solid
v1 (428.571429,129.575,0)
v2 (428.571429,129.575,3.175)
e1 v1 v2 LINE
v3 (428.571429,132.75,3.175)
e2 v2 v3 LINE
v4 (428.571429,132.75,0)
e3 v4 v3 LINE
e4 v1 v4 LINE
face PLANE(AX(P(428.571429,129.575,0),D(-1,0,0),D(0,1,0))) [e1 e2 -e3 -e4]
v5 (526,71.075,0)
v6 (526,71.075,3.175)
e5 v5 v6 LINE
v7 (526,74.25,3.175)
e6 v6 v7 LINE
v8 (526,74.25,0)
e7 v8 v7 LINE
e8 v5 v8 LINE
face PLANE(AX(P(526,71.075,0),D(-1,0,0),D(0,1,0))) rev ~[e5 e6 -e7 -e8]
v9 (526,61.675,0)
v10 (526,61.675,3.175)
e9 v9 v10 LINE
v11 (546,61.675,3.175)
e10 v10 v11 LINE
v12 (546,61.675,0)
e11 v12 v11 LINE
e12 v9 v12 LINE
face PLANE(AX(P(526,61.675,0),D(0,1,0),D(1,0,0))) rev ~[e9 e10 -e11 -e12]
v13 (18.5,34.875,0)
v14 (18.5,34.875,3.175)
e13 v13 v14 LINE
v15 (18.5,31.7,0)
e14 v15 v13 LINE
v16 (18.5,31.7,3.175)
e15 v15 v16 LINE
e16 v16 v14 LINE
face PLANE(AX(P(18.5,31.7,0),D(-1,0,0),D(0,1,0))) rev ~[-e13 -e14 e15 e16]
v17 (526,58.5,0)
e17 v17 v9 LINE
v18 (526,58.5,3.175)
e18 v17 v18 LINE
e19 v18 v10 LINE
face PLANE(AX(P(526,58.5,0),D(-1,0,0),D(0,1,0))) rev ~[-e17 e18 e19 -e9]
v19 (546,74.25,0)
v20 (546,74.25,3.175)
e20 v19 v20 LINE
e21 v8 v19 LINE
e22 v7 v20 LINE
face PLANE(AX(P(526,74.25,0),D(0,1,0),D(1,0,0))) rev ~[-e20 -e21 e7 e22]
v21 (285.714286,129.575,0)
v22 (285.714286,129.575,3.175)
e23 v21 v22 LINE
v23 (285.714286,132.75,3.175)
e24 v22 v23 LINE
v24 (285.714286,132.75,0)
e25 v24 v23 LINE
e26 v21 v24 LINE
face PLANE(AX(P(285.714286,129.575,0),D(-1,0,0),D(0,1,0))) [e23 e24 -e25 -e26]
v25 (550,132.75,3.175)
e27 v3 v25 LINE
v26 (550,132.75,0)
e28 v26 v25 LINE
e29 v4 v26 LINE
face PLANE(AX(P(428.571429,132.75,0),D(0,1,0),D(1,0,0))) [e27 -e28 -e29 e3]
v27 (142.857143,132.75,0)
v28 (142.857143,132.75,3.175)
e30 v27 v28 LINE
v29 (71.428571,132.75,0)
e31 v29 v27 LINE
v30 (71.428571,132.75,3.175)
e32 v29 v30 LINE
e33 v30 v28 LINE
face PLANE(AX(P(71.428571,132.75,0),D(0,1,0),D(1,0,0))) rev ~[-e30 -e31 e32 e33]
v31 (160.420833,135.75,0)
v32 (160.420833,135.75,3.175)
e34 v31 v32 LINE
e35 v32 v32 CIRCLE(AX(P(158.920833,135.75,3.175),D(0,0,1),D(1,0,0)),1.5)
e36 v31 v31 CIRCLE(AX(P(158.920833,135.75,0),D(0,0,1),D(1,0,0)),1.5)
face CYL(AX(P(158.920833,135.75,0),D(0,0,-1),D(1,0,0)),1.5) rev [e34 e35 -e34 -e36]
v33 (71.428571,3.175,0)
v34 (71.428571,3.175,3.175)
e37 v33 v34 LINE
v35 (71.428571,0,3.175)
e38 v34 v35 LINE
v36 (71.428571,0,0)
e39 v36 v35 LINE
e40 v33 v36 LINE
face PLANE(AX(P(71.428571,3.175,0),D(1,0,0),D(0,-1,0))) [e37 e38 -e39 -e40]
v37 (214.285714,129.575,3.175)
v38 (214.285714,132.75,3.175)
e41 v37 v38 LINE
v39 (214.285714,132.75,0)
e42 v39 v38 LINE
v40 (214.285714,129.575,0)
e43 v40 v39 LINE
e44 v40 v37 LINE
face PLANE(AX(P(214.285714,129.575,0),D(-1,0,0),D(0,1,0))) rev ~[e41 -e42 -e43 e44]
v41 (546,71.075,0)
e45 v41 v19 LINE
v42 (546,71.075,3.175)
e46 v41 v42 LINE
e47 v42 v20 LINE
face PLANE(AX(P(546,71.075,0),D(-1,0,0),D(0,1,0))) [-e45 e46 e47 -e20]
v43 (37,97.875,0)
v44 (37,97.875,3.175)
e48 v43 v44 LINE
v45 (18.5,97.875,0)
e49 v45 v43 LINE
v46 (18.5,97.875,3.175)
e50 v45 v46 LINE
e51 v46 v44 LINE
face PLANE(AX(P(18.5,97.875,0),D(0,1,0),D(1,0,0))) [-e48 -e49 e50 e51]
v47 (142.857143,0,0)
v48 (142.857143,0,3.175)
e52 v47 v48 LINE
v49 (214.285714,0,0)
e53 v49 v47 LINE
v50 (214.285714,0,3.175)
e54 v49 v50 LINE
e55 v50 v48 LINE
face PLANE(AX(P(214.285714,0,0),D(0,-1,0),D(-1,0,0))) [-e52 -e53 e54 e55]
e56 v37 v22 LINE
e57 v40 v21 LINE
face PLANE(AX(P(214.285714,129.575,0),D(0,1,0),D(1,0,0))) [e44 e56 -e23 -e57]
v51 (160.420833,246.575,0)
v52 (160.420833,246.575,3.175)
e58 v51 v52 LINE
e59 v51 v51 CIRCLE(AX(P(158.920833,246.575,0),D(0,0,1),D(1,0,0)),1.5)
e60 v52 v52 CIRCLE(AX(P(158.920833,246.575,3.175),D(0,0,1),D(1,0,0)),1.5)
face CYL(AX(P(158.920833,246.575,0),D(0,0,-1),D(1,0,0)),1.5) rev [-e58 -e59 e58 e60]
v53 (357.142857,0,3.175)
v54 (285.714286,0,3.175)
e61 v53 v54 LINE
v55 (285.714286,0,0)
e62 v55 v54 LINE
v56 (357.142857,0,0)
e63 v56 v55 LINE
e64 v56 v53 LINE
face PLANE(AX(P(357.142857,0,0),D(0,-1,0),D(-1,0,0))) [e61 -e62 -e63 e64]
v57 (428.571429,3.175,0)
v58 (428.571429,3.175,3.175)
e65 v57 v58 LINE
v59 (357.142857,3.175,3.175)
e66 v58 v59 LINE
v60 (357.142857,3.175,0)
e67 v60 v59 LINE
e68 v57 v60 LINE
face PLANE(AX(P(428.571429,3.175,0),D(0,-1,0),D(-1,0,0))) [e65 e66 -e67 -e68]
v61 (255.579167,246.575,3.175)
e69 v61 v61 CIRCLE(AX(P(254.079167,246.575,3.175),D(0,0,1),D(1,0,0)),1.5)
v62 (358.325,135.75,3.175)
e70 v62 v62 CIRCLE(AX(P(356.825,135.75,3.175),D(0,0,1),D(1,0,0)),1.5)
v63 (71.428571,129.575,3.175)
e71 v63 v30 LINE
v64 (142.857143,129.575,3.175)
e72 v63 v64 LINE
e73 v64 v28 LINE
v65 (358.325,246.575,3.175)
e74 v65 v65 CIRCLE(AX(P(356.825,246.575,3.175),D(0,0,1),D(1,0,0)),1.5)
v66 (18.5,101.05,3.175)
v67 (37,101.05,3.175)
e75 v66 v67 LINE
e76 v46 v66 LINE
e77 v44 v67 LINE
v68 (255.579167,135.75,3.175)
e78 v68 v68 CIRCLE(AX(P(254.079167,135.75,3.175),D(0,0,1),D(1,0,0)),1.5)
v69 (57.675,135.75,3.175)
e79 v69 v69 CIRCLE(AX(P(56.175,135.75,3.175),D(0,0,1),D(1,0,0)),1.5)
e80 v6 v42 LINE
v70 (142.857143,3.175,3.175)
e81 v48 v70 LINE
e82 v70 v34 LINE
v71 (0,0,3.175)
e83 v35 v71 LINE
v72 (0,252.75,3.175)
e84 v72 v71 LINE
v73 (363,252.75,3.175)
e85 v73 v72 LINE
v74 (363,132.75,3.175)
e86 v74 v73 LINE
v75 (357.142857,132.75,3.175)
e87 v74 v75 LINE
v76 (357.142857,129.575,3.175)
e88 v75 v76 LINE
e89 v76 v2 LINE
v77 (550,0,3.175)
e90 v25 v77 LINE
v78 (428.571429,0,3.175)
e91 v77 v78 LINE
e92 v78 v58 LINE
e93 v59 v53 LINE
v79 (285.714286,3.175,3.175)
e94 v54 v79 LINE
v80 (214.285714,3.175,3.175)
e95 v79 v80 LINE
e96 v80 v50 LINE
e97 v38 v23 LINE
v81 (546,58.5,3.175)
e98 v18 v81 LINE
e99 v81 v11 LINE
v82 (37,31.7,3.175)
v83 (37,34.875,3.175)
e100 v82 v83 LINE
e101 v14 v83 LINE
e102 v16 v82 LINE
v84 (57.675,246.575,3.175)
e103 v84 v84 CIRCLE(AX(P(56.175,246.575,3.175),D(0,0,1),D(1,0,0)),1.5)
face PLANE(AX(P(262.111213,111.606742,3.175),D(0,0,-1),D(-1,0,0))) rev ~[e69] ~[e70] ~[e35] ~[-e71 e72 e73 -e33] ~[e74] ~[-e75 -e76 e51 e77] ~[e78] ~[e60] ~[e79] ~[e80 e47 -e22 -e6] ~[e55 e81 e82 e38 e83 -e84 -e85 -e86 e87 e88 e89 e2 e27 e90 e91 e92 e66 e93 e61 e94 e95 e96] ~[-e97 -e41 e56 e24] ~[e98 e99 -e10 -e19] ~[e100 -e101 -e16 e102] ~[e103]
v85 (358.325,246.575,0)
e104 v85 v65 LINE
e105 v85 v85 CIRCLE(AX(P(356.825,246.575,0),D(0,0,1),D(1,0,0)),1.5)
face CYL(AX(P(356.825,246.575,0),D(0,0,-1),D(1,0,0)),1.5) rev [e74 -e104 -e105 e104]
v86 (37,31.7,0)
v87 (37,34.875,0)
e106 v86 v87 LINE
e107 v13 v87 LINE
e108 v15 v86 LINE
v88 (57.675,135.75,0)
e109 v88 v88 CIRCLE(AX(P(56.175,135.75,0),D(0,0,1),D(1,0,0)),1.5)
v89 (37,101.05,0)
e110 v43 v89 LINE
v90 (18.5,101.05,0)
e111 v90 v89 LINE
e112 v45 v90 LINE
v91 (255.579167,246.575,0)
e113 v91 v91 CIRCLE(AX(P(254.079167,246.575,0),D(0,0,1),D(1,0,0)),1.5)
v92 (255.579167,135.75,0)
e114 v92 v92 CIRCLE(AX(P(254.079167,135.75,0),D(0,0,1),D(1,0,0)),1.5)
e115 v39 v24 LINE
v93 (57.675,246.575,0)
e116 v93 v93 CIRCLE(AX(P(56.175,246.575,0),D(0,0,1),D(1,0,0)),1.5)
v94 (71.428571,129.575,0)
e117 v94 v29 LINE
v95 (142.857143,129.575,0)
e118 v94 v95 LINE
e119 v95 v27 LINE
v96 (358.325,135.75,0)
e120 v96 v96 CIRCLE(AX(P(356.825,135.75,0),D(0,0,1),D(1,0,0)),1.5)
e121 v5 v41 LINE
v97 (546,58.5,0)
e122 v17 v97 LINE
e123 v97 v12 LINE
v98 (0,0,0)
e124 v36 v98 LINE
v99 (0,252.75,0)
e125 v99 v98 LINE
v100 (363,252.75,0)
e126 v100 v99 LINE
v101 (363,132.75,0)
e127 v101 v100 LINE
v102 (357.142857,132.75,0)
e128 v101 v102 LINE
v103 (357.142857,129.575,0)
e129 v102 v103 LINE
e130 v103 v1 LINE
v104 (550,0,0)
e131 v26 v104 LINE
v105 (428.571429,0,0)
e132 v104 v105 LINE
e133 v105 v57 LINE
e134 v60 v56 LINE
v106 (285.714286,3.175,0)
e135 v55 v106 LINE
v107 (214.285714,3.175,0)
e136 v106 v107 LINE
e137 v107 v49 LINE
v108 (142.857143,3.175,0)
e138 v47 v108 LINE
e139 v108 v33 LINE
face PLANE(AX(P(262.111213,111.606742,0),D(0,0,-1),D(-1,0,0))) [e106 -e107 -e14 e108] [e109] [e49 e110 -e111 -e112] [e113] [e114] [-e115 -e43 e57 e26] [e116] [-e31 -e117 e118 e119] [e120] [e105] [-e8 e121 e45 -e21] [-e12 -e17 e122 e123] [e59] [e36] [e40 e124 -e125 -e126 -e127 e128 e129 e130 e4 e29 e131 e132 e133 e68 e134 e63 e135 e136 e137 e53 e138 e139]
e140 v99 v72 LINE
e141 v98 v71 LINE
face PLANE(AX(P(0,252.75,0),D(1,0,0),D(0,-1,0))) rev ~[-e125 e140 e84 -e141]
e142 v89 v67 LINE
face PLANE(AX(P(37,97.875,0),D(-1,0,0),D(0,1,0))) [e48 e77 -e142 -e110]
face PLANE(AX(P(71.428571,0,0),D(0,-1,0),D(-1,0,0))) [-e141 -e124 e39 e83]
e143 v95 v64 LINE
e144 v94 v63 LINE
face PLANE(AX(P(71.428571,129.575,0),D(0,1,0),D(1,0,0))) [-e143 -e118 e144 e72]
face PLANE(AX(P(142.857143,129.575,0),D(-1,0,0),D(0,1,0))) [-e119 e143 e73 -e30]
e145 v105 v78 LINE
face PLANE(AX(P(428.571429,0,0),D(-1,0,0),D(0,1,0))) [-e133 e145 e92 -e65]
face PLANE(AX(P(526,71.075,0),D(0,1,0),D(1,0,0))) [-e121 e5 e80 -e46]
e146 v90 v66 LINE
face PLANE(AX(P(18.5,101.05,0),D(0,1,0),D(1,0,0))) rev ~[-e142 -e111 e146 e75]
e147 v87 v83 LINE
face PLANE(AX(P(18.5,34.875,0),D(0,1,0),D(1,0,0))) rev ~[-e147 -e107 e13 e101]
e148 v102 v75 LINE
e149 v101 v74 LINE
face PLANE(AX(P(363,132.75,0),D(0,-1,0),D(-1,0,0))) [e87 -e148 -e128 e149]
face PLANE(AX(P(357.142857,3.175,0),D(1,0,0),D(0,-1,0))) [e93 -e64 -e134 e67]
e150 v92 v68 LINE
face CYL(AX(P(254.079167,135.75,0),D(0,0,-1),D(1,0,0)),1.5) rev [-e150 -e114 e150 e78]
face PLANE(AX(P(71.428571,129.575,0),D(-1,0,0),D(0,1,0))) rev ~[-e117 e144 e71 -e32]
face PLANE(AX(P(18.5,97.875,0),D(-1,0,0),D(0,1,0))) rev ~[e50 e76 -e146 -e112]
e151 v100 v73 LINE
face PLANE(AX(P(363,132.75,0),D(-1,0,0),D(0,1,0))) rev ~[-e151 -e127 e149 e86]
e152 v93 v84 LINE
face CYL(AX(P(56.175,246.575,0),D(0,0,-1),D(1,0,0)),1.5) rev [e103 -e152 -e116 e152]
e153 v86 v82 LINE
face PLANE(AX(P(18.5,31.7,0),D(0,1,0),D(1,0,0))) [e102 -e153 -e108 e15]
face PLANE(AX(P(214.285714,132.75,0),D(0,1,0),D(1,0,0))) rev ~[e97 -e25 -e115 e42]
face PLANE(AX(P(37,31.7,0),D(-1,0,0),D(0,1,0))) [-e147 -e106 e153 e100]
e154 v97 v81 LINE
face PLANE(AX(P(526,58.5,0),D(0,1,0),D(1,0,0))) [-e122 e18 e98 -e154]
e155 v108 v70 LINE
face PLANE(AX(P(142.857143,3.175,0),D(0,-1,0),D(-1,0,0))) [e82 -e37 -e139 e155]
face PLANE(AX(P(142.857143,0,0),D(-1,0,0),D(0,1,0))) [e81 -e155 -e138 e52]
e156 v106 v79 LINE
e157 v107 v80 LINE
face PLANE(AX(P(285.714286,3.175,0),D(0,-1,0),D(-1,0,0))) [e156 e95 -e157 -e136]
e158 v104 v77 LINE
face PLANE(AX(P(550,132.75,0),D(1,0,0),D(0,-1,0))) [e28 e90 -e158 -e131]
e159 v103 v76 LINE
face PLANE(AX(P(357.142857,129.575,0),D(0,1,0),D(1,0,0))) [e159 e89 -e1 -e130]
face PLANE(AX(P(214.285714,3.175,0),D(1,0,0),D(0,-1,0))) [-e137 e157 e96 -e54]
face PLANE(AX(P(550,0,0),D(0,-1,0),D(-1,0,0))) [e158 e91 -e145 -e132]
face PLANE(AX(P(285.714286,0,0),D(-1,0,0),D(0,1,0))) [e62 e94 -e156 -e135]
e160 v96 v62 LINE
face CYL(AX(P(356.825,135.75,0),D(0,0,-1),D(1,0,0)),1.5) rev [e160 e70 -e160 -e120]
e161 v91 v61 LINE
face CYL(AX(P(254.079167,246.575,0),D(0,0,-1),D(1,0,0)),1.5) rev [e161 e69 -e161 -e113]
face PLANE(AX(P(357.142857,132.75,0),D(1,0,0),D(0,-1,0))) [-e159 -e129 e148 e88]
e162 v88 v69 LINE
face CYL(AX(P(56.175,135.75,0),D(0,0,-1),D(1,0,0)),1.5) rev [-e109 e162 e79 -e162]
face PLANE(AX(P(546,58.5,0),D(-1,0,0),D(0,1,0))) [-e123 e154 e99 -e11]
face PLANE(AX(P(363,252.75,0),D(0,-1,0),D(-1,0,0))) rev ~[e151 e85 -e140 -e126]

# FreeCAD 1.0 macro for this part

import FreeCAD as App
import Part
import Sketcher

V = App.Vector


def add_polygon(sketch, points):
    """Adds a closed chain of lines whose ends are joined by coincident constraints."""
    first, n = sketch.GeometryCount, len(points)
    for a, b in zip(points, points[1:] + points[:1]):
        sketch.addGeometry(Part.LineSegment(App.Vector(*a, 0), App.Vector(*b, 0)), False)
    for i in range(n):
        sketch.addConstraint(Sketcher.Constraint("Coincident", first + i, 2, first + (i + 1) % n, 1))

doc = App.newDocument("Part")
params = doc.addObject("Spreadsheet::Sheet", "Params")
for row, (alias, value) in enumerate([
    ("sketch1_diameter", "3 mm"),
    ("sketch1_width", "363 mm"),
    ("sketch1_width2", "20 mm"),
    ("sketch1_height", "120 mm"),
    ("sketch1_width3", "18.5 mm"),
    ("pad1_length", "3.175 mm"),
], start=1):
    params.set(f"A{row}", alias)
    params.set(f"B{row}", "=" + value)
    params.setAlias(f"B{row}", alias)

body = doc.addObject("PartDesign::Body", "Body")

sketch1 = doc.addObject("Sketcher::SketchObject", "Sketch")
body.addObject(sketch1)
sketch1.AttachmentSupport = (doc.XY_Plane, [""])
sketch1.MapMode = "FlatFace"
add_polygon(sketch1, [(0, 252.8), (0, 0), (71.4, 0), (71.4, 3.2), (142.9, 3.2), (142.9, 0), (214.3, 0), (214.3, 3.2), (285.7, 3.2), (285.7, 0), (357.1, 0), (357.1, 3.2), (428.6, 3.2), (428.6, 0), (550, 0), (550, 132.8), (428.6, 132.8), (428.6, 129.6), (357.1, 129.6), (357.1, 132.8), (363, 132.8), (363, 252.8)])
add_polygon(sketch1, [(526, 58.5), (526, 61.7), (546, 61.7), (546, 58.5)])
add_polygon(sketch1, [(526, 71.1), (526, 74.2), (546, 74.2), (546, 71.1)])
sketch1.addGeometry(Part.Circle(V(356.8, 135.8, 0), V(0, 0, 1), 1.5), False)
add_polygon(sketch1, [(18.5, 31.7), (18.5, 34.9), (37, 34.9), (37, 31.7)])
add_polygon(sketch1, [(214.3, 129.6), (214.3, 132.8), (285.7, 132.8), (285.7, 129.6)])
sketch1.addGeometry(Part.Circle(V(254.1, 135.8, 0), V(0, 0, 1), 1.5), False)
sketch1.addGeometry(Part.Circle(V(158.9, 135.8, 0), V(0, 0, 1), 1.5), False)
add_polygon(sketch1, [(18.5, 97.9), (18.5, 101), (37, 101), (37, 97.9)])
add_polygon(sketch1, [(71.4, 129.6), (71.4, 132.8), (142.9, 132.8), (142.9, 129.6)])
sketch1.addGeometry(Part.Circle(V(56.2, 135.8, 0), V(0, 0, 1), 1.5), False)
sketch1.addGeometry(Part.Circle(V(356.8, 246.6, 0), V(0, 0, 1), 1.5), False)
sketch1.addGeometry(Part.Circle(V(254.1, 246.6, 0), V(0, 0, 1), 1.5), False)
sketch1.addGeometry(Part.Circle(V(158.9, 246.6, 0), V(0, 0, 1), 1.5), False)
sketch1.addGeometry(Part.Circle(V(56.2, 246.6, 0), V(0, 0, 1), 1.5), False)
sketch1.addConstraint(Sketcher.Constraint("Vertical", 0))
sketch1.addConstraint(Sketcher.Constraint("Horizontal", 1))
sketch1.addConstraint(Sketcher.Constraint("Vertical", 2))
sketch1.addConstraint(Sketcher.Constraint("Horizontal", 3))
sketch1.addConstraint(Sketcher.Constraint("Vertical", 4))
sketch1.addConstraint(Sketcher.Constraint("Horizontal", 5))
sketch1.addConstraint(Sketcher.Constraint("Vertical", 6))
sketch1.addConstraint(Sketcher.Constraint("Horizontal", 7))
sketch1.addConstraint(Sketcher.Constraint("Vertical", 8))
sketch1.addConstraint(Sketcher.Constraint("Horizontal", 9))
sketch1.addConstraint(Sketcher.Constraint("Vertical", 10))
sketch1.addConstraint(Sketcher.Constraint("Horizontal", 11))
sketch1.addConstraint(Sketcher.Constraint("Vertical", 12))
sketch1.addConstraint(Sketcher.Constraint("Horizontal", 13))
sketch1.addConstraint(Sketcher.Constraint("Vertical", 14))
sketch1.addConstraint(Sketcher.Constraint("Horizontal", 15))
sketch1.addConstraint(Sketcher.Constraint("Vertical", 16))
sketch1.addConstraint(Sketcher.Constraint("Horizontal", 17))
sketch1.addConstraint(Sketcher.Constraint("Vertical", 18))
sketch1.addConstraint(Sketcher.Constraint("Horizontal", 19))
sketch1.addConstraint(Sketcher.Constraint("Vertical", 20))
sketch1.addConstraint(Sketcher.Constraint("Horizontal", 21))
sketch1.addConstraint(Sketcher.Constraint("Vertical", 22))
sketch1.addConstraint(Sketcher.Constraint("Horizontal", 23))
sketch1.addConstraint(Sketcher.Constraint("Vertical", 24))
sketch1.addConstraint(Sketcher.Constraint("Horizontal", 25))
sketch1.addConstraint(Sketcher.Constraint("Vertical", 26))
sketch1.addConstraint(Sketcher.Constraint("Horizontal", 27))
sketch1.addConstraint(Sketcher.Constraint("Vertical", 28))
sketch1.addConstraint(Sketcher.Constraint("Horizontal", 29))
sketch1.addConstraint(Sketcher.Constraint("Vertical", 31))
sketch1.addConstraint(Sketcher.Constraint("Horizontal", 32))
sketch1.addConstraint(Sketcher.Constraint("Vertical", 33))
sketch1.addConstraint(Sketcher.Constraint("Horizontal", 34))
sketch1.addConstraint(Sketcher.Constraint("Vertical", 35))
sketch1.addConstraint(Sketcher.Constraint("Horizontal", 36))
sketch1.addConstraint(Sketcher.Constraint("Vertical", 37))
sketch1.addConstraint(Sketcher.Constraint("Horizontal", 38))
sketch1.addConstraint(Sketcher.Constraint("Vertical", 41))
sketch1.addConstraint(Sketcher.Constraint("Horizontal", 42))
sketch1.addConstraint(Sketcher.Constraint("Vertical", 43))
sketch1.addConstraint(Sketcher.Constraint("Horizontal", 44))
sketch1.addConstraint(Sketcher.Constraint("Vertical", 45))
sketch1.addConstraint(Sketcher.Constraint("Horizontal", 46))
sketch1.addConstraint(Sketcher.Constraint("Vertical", 47))
sketch1.addConstraint(Sketcher.Constraint("Horizontal", 48))
sketch1.addConstraint(Sketcher.Constraint("Coincident", 0, 2, -1, 1))
sketch1.addConstraint(Sketcher.Constraint("Equal", 30, 39))
sketch1.addConstraint(Sketcher.Constraint("Equal", 39, 40))
sketch1.addConstraint(Sketcher.Constraint("Equal", 40, 49))
sketch1.addConstraint(Sketcher.Constraint("Equal", 49, 50))
sketch1.addConstraint(Sketcher.Constraint("Equal", 50, 51))
sketch1.addConstraint(Sketcher.Constraint("Equal", 51, 52))
sketch1.addConstraint(Sketcher.Constraint("Equal", 52, 53))
sketch1.addConstraint(Sketcher.Constraint("PointOnObject", 4, 2, -1))
sketch1.addConstraint(Sketcher.Constraint("PointOnObject", 8, 2, -1))
sketch1.addConstraint(Sketcher.Constraint("PointOnObject", 12, 2, -1))
sketch1.addConstraint(Sketcher.Constraint("Horizontal", 30, 3, 39, 3))
sketch1.addConstraint(Sketcher.Constraint("Horizontal", 39, 3, 40, 3))
sketch1.addConstraint(Sketcher.Constraint("Horizontal", 40, 3, 49, 3))
sketch1.addConstraint(Sketcher.Constraint("Horizontal", 50, 3, 51, 3))
sketch1.addConstraint(Sketcher.Constraint("Horizontal", 51, 3, 52, 3))
sketch1.addConstraint(Sketcher.Constraint("Horizontal", 52, 3, 53, 3))
sketch1.addConstraint(Sketcher.Constraint("Horizontal", 3, 2, 6, 2))
sketch1.addConstraint(Sketcher.Constraint("Horizontal", 7, 2, 10, 2))
sketch1.addConstraint(Sketcher.Constraint("Horizontal", 15, 2, 18, 2))
sketch1.addConstraint(Sketcher.Constraint("Horizontal", 19, 2, 35, 2))
sketch1.addConstraint(Sketcher.Constraint("Horizontal", 17, 2, 37, 2))
sketch1.addConstraint(Sketcher.Constraint("Horizontal", 36, 2, 45, 2))
sketch1.addConstraint(Sketcher.Constraint("Horizontal", 38, 2, 47, 2))
sketch1.addConstraint(Sketcher.Constraint("Vertical", 30, 3, 50, 3))
sketch1.addConstraint(Sketcher.Constraint("Vertical", 39, 3, 51, 3))
sketch1.addConstraint(Sketcher.Constraint("Vertical", 40, 3, 52, 3))
sketch1.addConstraint(Sketcher.Constraint("Vertical", 49, 3, 53, 3))
sketch1.addConstraint(Sketcher.Constraint("Vertical", 12, 2, 15, 2))
sketch1.addConstraint(Sketcher.Constraint("Vertical", 10, 2, 17, 2))
sketch1.addConstraint(Sketcher.Constraint("Vertical", 25, 2, 26, 2))
sketch1.addConstraint(Sketcher.Constraint("Vertical", 24, 2, 27, 2))
sketch1.addConstraint(Sketcher.Constraint("Vertical", 6, 2, 35, 2))
sketch1.addConstraint(Sketcher.Constraint("Vertical", 8, 2, 36, 2))
sketch1.addConstraint(Sketcher.Constraint("Vertical", 34, 2, 41, 2))
sketch1.addConstraint(Sketcher.Constraint("Vertical", 33, 2, 42, 2))
sketch1.addConstraint(Sketcher.Constraint("Vertical", 2, 2, 45, 2))
sketch1.addConstraint(Sketcher.Constraint("Vertical", 4, 2, 46, 2))
sketch1.addConstraint(Sketcher.Constraint("Equal", 1, 3))
sketch1.addConstraint(Sketcher.Constraint("Equal", 3, 5))
sketch1.addConstraint(Sketcher.Constraint("Equal", 5, 7))
sketch1.addConstraint(Sketcher.Constraint("Equal", 7, 9))
sketch1.addConstraint(Sketcher.Constraint("Equal", 9, 11))
sketch1.addConstraint(Sketcher.Constraint("Equal", 12, 16))
sketch1.addConstraint(Sketcher.Constraint("Equal", 18, 22))
sketch1.addConstraint(Sketcher.Constraint("Equal", 24, 26))
sketch1.addConstraint(Sketcher.Constraint("Equal", 28, 31))
sketch1.addConstraint(Sketcher.Constraint("Equal", 37, 41))
sketch1.addConstraint(Sketcher.Constraint("Diameter", 30, 3.0))
sketch1.addConstraint(Sketcher.Constraint("DistanceX", 21, 2, 21, 1, 363.0))
sketch1.addConstraint(Sketcher.Constraint("DistanceX", 23, 1, 23, 2, 20.0))
sketch1.addConstraint(Sketcher.Constraint("DistanceY", 20, 1, 20, 2, 120.0))
sketch1.addConstraint(Sketcher.Constraint("DistanceX", 32, 1, 32, 2, 18.5))
sketch1.addConstraint(Sketcher.Constraint("DistanceX", -1, 1, 13, 2, 550.0))
sketch1.addConstraint(Sketcher.Constraint("DistanceX", -1, 1, 22, 2, 526.0))
sketch1.addConstraint(Sketcher.Constraint("DistanceX", -1, 1, 32, 2, 37.0))
sketch1.addConstraint(Sketcher.Constraint("DistanceY", 14, 2, 30, 3, 3.0))
sketch1.addConstraint(Sketcher.Constraint("DistanceY", 17, 2, 50, 3, 117.0))
sketch1.addConstraint(Sketcher.Constraint("DistanceY", 32, 2, 43, 2, 63.0))
sketch1.addConstraint(Sketcher.Constraint("DistanceY", 0, 2, 0, 1, 252.75))
sketch1.addConstraint(Sketcher.Constraint("DistanceY", -1, 1, 24, 2, 58.5))
sketch1.addConstraint(Sketcher.Constraint("DistanceY", -1, 1, 33, 2, 31.7))
sketch1.addConstraint(Sketcher.Constraint("DistanceY", 11, 2, 16, 2, 126.4))
sketch1.addConstraint(Sketcher.Constraint("DistanceY", 26, 2, 14, 2, 58.5))
sketch1.addConstraint(Sketcher.Constraint("DistanceX", 49, 3, 30, 3, 300.65))
sketch1.addConstraint(Sketcher.Constraint("DistanceX", -1, 1, 30, 3, 356.825))
sketch1.addConstraint(Sketcher.Constraint("DistanceX", 1, 1, 1, 2, 71.428571))
sketch1.addConstraint(Sketcher.Constraint("DistanceX", 1, 2, 40, 3, 87.492262))
sketch1.addConstraint(Sketcher.Constraint("DistanceX", 39, 3, 7, 2, 31.635119))
sketch1.setExpression("Constraints[140]", "Params.sketch1_diameter")
sketch1.setExpression("Constraints[141]", "Params.sketch1_width")
sketch1.setExpression("Constraints[142]", "Params.sketch1_width2")
sketch1.setExpression("Constraints[143]", "Params.sketch1_height")
sketch1.setExpression("Constraints[144]", "Params.sketch1_width3")
pad1 = doc.addObject("PartDesign::Pad", "Pad")
body.addObject(pad1)
pad1.Profile = sketch1
pad1.setExpression("Length", "Params.pad1_length")

doc.recompute()
